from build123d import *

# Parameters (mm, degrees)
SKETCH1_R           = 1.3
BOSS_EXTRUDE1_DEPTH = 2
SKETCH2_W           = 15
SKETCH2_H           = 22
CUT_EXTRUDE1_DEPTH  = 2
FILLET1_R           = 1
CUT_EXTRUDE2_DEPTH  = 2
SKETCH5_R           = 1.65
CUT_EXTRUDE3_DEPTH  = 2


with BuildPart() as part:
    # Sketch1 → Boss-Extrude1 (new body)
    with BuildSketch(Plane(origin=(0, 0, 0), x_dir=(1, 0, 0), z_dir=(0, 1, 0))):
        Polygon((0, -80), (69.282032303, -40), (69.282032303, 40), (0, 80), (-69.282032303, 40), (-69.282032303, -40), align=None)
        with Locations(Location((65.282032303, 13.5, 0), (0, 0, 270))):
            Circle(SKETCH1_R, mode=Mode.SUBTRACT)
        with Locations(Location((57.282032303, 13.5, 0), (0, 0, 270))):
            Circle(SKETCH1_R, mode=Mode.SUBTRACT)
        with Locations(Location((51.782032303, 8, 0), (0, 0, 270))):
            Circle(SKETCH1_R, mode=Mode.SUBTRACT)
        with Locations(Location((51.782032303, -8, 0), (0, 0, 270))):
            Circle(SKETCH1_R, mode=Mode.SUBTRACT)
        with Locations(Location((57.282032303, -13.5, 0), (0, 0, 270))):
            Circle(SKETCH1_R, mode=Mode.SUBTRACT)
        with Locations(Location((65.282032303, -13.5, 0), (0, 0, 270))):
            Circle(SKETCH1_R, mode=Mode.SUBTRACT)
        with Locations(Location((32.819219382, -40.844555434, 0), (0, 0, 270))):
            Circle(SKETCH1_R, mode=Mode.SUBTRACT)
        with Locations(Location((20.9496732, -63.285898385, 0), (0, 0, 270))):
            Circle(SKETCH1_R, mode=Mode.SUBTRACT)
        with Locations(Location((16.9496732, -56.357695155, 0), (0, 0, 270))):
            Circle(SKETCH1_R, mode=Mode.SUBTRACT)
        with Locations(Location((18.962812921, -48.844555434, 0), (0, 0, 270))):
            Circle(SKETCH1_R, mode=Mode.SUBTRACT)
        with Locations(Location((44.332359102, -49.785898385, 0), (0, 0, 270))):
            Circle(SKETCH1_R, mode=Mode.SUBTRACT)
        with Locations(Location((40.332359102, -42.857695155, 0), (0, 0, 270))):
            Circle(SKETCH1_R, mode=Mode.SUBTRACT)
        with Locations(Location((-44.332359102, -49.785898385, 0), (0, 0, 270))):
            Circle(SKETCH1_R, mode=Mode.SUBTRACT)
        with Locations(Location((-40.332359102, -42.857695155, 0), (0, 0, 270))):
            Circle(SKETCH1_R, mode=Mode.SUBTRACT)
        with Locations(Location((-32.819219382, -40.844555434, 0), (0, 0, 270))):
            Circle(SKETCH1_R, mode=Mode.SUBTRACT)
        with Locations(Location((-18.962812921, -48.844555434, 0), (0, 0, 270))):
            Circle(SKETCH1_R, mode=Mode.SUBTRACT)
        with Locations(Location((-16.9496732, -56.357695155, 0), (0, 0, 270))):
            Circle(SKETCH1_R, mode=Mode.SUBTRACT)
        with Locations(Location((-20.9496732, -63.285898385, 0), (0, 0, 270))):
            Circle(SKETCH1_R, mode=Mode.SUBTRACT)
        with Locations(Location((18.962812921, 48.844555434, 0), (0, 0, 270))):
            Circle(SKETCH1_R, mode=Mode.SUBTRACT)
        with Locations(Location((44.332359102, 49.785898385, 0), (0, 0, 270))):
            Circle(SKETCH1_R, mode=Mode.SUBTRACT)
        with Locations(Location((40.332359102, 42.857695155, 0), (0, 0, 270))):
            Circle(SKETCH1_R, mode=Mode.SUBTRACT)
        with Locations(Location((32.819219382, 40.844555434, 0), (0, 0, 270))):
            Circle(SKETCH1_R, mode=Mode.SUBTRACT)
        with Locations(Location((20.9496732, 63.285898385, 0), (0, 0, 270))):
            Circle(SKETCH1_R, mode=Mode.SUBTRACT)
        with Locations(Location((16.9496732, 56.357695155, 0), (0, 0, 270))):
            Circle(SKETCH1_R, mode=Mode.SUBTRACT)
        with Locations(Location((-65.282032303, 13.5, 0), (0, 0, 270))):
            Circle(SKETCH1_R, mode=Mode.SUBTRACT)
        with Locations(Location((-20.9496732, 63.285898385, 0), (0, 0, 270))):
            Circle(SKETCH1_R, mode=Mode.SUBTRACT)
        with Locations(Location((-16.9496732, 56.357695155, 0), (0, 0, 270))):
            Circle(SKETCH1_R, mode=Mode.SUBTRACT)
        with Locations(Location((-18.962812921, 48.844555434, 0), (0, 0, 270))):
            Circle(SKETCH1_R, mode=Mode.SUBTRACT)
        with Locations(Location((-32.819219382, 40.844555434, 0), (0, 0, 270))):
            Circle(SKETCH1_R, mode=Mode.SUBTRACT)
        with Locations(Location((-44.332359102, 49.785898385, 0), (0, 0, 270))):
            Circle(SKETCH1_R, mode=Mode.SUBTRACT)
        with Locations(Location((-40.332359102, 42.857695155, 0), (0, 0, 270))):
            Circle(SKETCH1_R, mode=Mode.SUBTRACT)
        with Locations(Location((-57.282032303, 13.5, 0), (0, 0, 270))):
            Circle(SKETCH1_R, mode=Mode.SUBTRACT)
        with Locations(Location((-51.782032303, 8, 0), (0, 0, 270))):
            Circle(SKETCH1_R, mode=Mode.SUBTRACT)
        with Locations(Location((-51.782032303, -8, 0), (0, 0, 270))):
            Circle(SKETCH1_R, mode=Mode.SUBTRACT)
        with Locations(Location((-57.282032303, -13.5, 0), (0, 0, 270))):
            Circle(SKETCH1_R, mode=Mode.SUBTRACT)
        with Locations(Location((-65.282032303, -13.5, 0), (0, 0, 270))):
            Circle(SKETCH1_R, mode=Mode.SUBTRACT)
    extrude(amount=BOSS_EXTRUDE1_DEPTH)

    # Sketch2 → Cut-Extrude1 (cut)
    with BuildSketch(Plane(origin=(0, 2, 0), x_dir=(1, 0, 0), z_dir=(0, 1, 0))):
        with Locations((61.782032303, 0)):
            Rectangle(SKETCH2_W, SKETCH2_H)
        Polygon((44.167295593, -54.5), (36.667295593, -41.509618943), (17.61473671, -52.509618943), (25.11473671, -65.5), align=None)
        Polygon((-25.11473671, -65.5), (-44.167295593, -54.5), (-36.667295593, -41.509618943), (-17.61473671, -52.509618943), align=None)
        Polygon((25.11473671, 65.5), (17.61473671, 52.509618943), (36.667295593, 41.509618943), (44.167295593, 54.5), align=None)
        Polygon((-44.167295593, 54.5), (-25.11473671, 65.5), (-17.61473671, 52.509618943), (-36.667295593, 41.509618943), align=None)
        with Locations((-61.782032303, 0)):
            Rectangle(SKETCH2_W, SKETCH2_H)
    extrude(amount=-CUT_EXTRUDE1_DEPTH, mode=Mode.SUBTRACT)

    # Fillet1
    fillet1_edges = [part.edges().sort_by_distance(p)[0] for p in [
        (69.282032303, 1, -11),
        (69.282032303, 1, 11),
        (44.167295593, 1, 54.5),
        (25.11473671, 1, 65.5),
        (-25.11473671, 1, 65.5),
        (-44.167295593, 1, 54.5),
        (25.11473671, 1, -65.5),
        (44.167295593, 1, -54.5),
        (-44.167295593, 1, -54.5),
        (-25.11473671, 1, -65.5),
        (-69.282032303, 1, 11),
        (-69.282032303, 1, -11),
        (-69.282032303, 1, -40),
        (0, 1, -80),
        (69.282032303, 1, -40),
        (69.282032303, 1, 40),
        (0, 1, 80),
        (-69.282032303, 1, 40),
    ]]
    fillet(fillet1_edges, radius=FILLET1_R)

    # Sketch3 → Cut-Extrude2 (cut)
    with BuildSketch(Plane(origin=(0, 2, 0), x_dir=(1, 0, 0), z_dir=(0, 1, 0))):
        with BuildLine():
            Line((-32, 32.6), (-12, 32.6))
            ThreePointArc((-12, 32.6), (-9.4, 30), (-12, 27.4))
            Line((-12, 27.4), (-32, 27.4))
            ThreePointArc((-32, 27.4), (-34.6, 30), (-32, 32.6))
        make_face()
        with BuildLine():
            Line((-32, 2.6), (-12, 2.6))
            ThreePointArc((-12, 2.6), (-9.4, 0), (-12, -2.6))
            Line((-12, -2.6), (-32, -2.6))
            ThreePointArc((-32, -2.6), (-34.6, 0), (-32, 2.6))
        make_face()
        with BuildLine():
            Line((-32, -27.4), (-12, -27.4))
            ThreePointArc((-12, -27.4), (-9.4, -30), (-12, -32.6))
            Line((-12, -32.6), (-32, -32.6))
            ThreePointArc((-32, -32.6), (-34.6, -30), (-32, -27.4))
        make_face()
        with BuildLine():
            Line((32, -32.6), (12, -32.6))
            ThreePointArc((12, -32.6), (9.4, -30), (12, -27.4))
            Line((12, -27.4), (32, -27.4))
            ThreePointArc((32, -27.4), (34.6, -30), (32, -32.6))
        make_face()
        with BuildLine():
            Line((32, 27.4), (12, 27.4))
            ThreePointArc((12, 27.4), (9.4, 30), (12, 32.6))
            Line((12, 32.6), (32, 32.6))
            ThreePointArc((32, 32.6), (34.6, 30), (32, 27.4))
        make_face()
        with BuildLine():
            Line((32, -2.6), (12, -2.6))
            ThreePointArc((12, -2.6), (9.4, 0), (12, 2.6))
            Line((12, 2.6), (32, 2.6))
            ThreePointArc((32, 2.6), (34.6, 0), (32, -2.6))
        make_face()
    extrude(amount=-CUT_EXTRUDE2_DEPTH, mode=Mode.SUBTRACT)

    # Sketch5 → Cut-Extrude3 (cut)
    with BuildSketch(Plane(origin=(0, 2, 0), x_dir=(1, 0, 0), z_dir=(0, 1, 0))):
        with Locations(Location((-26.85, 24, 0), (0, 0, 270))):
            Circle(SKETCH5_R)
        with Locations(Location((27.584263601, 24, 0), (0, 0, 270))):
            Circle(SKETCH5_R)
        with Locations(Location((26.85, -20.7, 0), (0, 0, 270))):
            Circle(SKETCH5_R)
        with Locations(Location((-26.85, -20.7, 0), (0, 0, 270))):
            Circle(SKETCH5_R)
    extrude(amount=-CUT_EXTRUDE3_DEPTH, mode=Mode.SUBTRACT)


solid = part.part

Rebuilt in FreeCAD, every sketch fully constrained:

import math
import FreeCAD as App
import Part
import Sketcher
from FreeCAD import Vector
Q = App.Units.Quantity


def edges_at(feature, points):
    """Names of the edges that pass closest to the given points."""
    edges = feature.Shape.Edges
    near = lambda p: min(range(len(edges)), key=lambda i: edges[i].distToShape(Part.Vertex(*p))[0])
    return sorted({f"Edge{near(p) + 1}" for p in points})

doc = App.newDocument("Part")
params = doc.addObject("Spreadsheet::Sheet", "Params")
for row, (alias, value) in enumerate([
    ("sketch1_diameter", "2.6 mm"),
    ("sketch1_height", "80 mm"),
    ("sketch1_length", "80 mm"),
    ("pad1_length", "2 mm"),
    ("sketch2_width", "15 mm"),
    ("sketch2_height", "22 mm"),
    ("sketch2_length", "15 mm"),
    ("sketch2_length2", "22 mm"),
    ("pocket1_length", "2 mm"),
    ("fillet_radius", "1 mm"),
    ("sketch3_radius", "2.6 mm"),
    ("sketch3_width", "20 mm"),
    ("pocket2_length", "2 mm"),
    ("sketch4_diameter", "3.3 mm"),
    ("pocket3_length", "2 mm"),
], start=1):
    params.set(f"A{row}", alias)
    params.set(f"B{row}", "=" + value)
    params.setAlias(f"B{row}", alias)

body = doc.addObject("PartDesign::Body", "Body")

sketch1 = body.newObject("Sketcher::SketchObject", "Sketch")
sketch1.AttachmentSupport = (doc.getObject("XZ_Plane"), [""])
sketch1.MapMode = "FlatFace"
sketch1.addGeometry(Part.LineSegment(Vector(0, 80, 0), Vector(69.282032, 40, 0)), False)
sketch1.addGeometry(Part.LineSegment(Vector(69.282032, 40, 0), Vector(69.282032, -40, 0)), False)
sketch1.addGeometry(Part.LineSegment(Vector(69.282032, -40, 0), Vector(0, -80, 0)), False)
sketch1.addGeometry(Part.LineSegment(Vector(0, -80, 0), Vector(-69.282032, -40, 0)), False)
sketch1.addGeometry(Part.LineSegment(Vector(-69.282032, -40, 0), Vector(-69.282032, 40, 0)), False)
sketch1.addGeometry(Part.LineSegment(Vector(-69.282032, 40, 0), Vector(0, 80, 0)), False)
sketch1.addGeometry(Part.Circle(Vector(-44.332359, 49.785898, 0), Vector(0, 0, 1), 1.3), False)
sketch1.addGeometry(Part.Circle(Vector(-40.332359, 42.857695, 0), Vector(0, 0, 1), 1.3), False)
sketch1.addGeometry(Part.Circle(Vector(-20.949673, 63.285898, 0), Vector(0, 0, 1), 1.3), False)
sketch1.addGeometry(Part.Circle(Vector(-16.949673, 56.357695, 0), Vector(0, 0, 1), 1.3), False)
sketch1.addGeometry(Part.Circle(Vector(-18.962813, 48.844555, 0), Vector(0, 0, 1), 1.3), False)
sketch1.addGeometry(Part.Circle(Vector(-32.819219, 40.844555, 0), Vector(0, 0, 1), 1.3), False)
sketch1.addGeometry(Part.Circle(Vector(-65.282032, 13.5, 0), Vector(0, 0, 1), 1.3), False)
sketch1.addGeometry(Part.Circle(Vector(-57.282032, 13.5, 0), Vector(0, 0, 1), 1.3), False)
sketch1.addGeometry(Part.Circle(Vector(-51.782032, 8, 0), Vector(0, 0, 1), 1.3), False)
sketch1.addGeometry(Part.Circle(Vector(20.949673, 63.285898, 0), Vector(0, 0, 1), 1.3), False)
sketch1.addGeometry(Part.Circle(Vector(16.949673, 56.357695, 0), Vector(0, 0, 1), 1.3), False)
sketch1.addGeometry(Part.Circle(Vector(18.962813, 48.844555, 0), Vector(0, 0, 1), 1.3), False)
sketch1.addGeometry(Part.Circle(Vector(32.819219, 40.844555, 0), Vector(0, 0, 1), 1.3), False)
sketch1.addGeometry(Part.Circle(Vector(44.332359, 49.785898, 0), Vector(0, 0, 1), 1.3), False)
sketch1.addGeometry(Part.Circle(Vector(40.332359, 42.857695, 0), Vector(0, 0, 1), 1.3), False)
sketch1.addGeometry(Part.Circle(Vector(57.282032, 13.5, 0), Vector(0, 0, 1), 1.3), False)
sketch1.addGeometry(Part.Circle(Vector(65.282032, 13.5, 0), Vector(0, 0, 1), 1.3), False)
sketch1.addGeometry(Part.Circle(Vector(51.782032, 8, 0), Vector(0, 0, 1), 1.3), False)
sketch1.addGeometry(Part.Circle(Vector(-51.782032, -8, 0), Vector(0, 0, 1), 1.3), False)
sketch1.addGeometry(Part.Circle(Vector(-65.282032, -13.5, 0), Vector(0, 0, 1), 1.3), False)
sketch1.addGeometry(Part.Circle(Vector(-57.282032, -13.5, 0), Vector(0, 0, 1), 1.3), False)
sketch1.addGeometry(Part.Circle(Vector(-40.332359, -42.857695, 0), Vector(0, 0, 1), 1.3), False)
sketch1.addGeometry(Part.Circle(Vector(-44.332359, -49.785898, 0), Vector(0, 0, 1), 1.3), False)
sketch1.addGeometry(Part.Circle(Vector(-32.819219, -40.844555, 0), Vector(0, 0, 1), 1.3), False)
sketch1.addGeometry(Part.Circle(Vector(-18.962813, -48.844555, 0), Vector(0, 0, 1), 1.3), False)
sketch1.addGeometry(Part.Circle(Vector(-16.949673, -56.357695, 0), Vector(0, 0, 1), 1.3), False)
sketch1.addGeometry(Part.Circle(Vector(-20.949673, -63.285898, 0), Vector(0, 0, 1), 1.3), False)
sketch1.addGeometry(Part.Circle(Vector(51.782032, -8, 0), Vector(0, 0, 1), 1.3), False)
sketch1.addGeometry(Part.Circle(Vector(57.282032, -13.5, 0), Vector(0, 0, 1), 1.3), False)
sketch1.addGeometry(Part.Circle(Vector(65.282032, -13.5, 0), Vector(0, 0, 1), 1.3), False)
sketch1.addGeometry(Part.Circle(Vector(32.819219, -40.844555, 0), Vector(0, 0, 1), 1.3), False)
sketch1.addGeometry(Part.Circle(Vector(18.962813, -48.844555, 0), Vector(0, 0, 1), 1.3), False)
sketch1.addGeometry(Part.Circle(Vector(16.949673, -56.357695, 0), Vector(0, 0, 1), 1.3), False)
sketch1.addGeometry(Part.Circle(Vector(20.949673, -63.285898, 0), Vector(0, 0, 1), 1.3), False)
sketch1.addGeometry(Part.Circle(Vector(40.332359, -42.857695, 0), Vector(0, 0, 1), 1.3), False)
sketch1.addGeometry(Part.Circle(Vector(44.332359, -49.785898, 0), Vector(0, 0, 1), 1.3), False)
sketch1.addConstraint(Sketcher.Constraint("Coincident", 0, 2, 1, 1))
sketch1.addConstraint(Sketcher.Constraint("Coincident", 1, 2, 2, 1))
sketch1.addConstraint(Sketcher.Constraint("Coincident", 2, 2, 3, 1))
sketch1.addConstraint(Sketcher.Constraint("Coincident", 3, 2, 4, 1))
sketch1.addConstraint(Sketcher.Constraint("Coincident", 4, 2, 5, 1))
sketch1.addConstraint(Sketcher.Constraint("Coincident", 5, 2, 0, 1))
sketch1.addConstraint(Sketcher.Constraint("Vertical", 1))
sketch1.addConstraint(Sketcher.Constraint("Vertical", 4))
sketch1.addConstraint(Sketcher.Constraint("Equal", 6, 7))
sketch1.addConstraint(Sketcher.Constraint("Equal", 7, 8))
sketch1.addConstraint(Sketcher.Constraint("Equal", 8, 9))
sketch1.addConstraint(Sketcher.Constraint("Equal", 9, 10))
sketch1.addConstraint(Sketcher.Constraint("Equal", 10, 11))
sketch1.addConstraint(Sketcher.Constraint("Equal", 11, 12))
sketch1.addConstraint(Sketcher.Constraint("Equal", 12, 13))
sketch1.addConstraint(Sketcher.Constraint("Equal", 13, 14))
sketch1.addConstraint(Sketcher.Constraint("Equal", 14, 15))
sketch1.addConstraint(Sketcher.Constraint("Equal", 15, 16))
sketch1.addConstraint(Sketcher.Constraint("Equal", 16, 17))
sketch1.addConstraint(Sketcher.Constraint("Equal", 17, 18))
sketch1.addConstraint(Sketcher.Constraint("Equal", 18, 19))
sketch1.addConstraint(Sketcher.Constraint("Equal", 19, 20))
sketch1.addConstraint(Sketcher.Constraint("Equal", 20, 21))
sketch1.addConstraint(Sketcher.Constraint("Equal", 21, 22))
sketch1.addConstraint(Sketcher.Constraint("Equal", 22, 23))
sketch1.addConstraint(Sketcher.Constraint("Equal", 23, 24))
sketch1.addConstraint(Sketcher.Constraint("Equal", 24, 25))
sketch1.addConstraint(Sketcher.Constraint("Equal", 25, 26))
sketch1.addConstraint(Sketcher.Constraint("Equal", 26, 27))
sketch1.addConstraint(Sketcher.Constraint("Equal", 27, 28))
sketch1.addConstraint(Sketcher.Constraint("Equal", 28, 29))
sketch1.addConstraint(Sketcher.Constraint("Equal", 29, 30))
sketch1.addConstraint(Sketcher.Constraint("Equal", 30, 31))
sketch1.addConstraint(Sketcher.Constraint("Equal", 31, 32))
sketch1.addConstraint(Sketcher.Constraint("Equal", 32, 33))
sketch1.addConstraint(Sketcher.Constraint("Equal", 33, 34))
sketch1.addConstraint(Sketcher.Constraint("Equal", 34, 35))
sketch1.addConstraint(Sketcher.Constraint("Equal", 35, 36))
sketch1.addConstraint(Sketcher.Constraint("Equal", 36, 37))
sketch1.addConstraint(Sketcher.Constraint("Equal", 37, 38))
sketch1.addConstraint(Sketcher.Constraint("Equal", 38, 39))
sketch1.addConstraint(Sketcher.Constraint("Equal", 39, 40))
sketch1.addConstraint(Sketcher.Constraint("Equal", 40, 41))
sketch1.addConstraint(Sketcher.Constraint("Symmetric", 23, 3, 24, 3, -1, 1))
sketch1.addConstraint(Sketcher.Constraint("Symmetric", 22, 3, 25, 3, -1, 1))
sketch1.addConstraint(Sketcher.Constraint("Symmetric", 21, 3, 26, 3, -1, 1))
sketch1.addConstraint(Sketcher.Constraint("Symmetric", 20, 3, 27, 3, -1, 1))
sketch1.addConstraint(Sketcher.Constraint("Symmetric", 19, 3, 28, 3, -1, 1))
sketch1.addConstraint(Sketcher.Constraint("Symmetric", 18, 3, 29, 3, -1, 1))
sketch1.addConstraint(Sketcher.Constraint("Symmetric", 17, 3, 30, 3, -1, 1))
sketch1.addConstraint(Sketcher.Constraint("Symmetric", 16, 3, 31, 3, -1, 1))
sketch1.addConstraint(Sketcher.Constraint("Symmetric", 15, 3, 32, 3, -1, 1))
sketch1.addConstraint(Sketcher.Constraint("Symmetric", 14, 3, 33, 3, -1, 1))
sketch1.addConstraint(Sketcher.Constraint("Symmetric", 13, 3, 34, 3, -1, 1))
sketch1.addConstraint(Sketcher.Constraint("Symmetric", 12, 3, 35, 3, -1, 1))
sketch1.addConstraint(Sketcher.Constraint("Symmetric", 11, 3, 36, 3, -1, 1))
sketch1.addConstraint(Sketcher.Constraint("Symmetric", 10, 3, 37, 3, -1, 1))
sketch1.addConstraint(Sketcher.Constraint("Symmetric", 9, 3, 38, 3, -1, 1))
sketch1.addConstraint(Sketcher.Constraint("Symmetric", 8, 3, 39, 3, -1, 1))
sketch1.addConstraint(Sketcher.Constraint("Symmetric", 7, 3, 40, 3, -1, 1))
sketch1.addConstraint(Sketcher.Constraint("Symmetric", 6, 3, 41, 3, -1, 1))
sketch1.addConstraint(Sketcher.Constraint("Symmetric", 0, 2, 3, 2, -1, 1))
sketch1.addConstraint(Sketcher.Constraint("Symmetric", 2, 2, 5, 2, -1, 1))
sketch1.addConstraint(Sketcher.Constraint("Symmetric", 8, 3, 15, 3, -2))
sketch1.addConstraint(Sketcher.Constraint("Symmetric", 9, 3, 16, 3, -2))
sketch1.addConstraint(Sketcher.Constraint("Symmetric", 10, 3, 17, 3, -2))
sketch1.addConstraint(Sketcher.Constraint("Symmetric", 11, 3, 18, 3, -2))
sketch1.addConstraint(Sketcher.Constraint("Symmetric", 6, 3, 19, 3, -2))
sketch1.addConstraint(Sketcher.Constraint("Symmetric", 7, 3, 20, 3, -2))
sketch1.addConstraint(Sketcher.Constraint("Symmetric", 13, 3, 21, 3, -2))
sketch1.addConstraint(Sketcher.Constraint("Symmetric", 12, 3, 22, 3, -2))
sketch1.addConstraint(Sketcher.Constraint("Symmetric", 14, 3, 23, 3, -2))
sketch1.addConstraint(Sketcher.Constraint("PointOnObject", 2, 2, -2))
sketch1.addConstraint(Sketcher.Constraint("Parallel", 2, 5))
sketch1.addConstraint(Sketcher.Constraint("Horizontal", 12, 3, 13, 3))
sketch1.addConstraint(Sketcher.Constraint("Horizontal", 1, 2, 3, 2))
sketch1.addConstraint(Sketcher.Constraint("Diameter", 6, 2.6))
sketch1.addConstraint(Sketcher.Constraint("DistanceY", 1, 2, 1, 1, 80.0))
sketch1.addConstraint(Sketcher.Constraint("Angle", 0, Q("-30 deg")))
sketch1.addConstraint(Sketcher.Constraint("Distance", 0, 80.0))
sketch1.addConstraint(Sketcher.Constraint("DistanceY", -1, 1, 14, 3, 8.0))
sketch1.addConstraint(Sketcher.Constraint("DistanceX", 6, 3, 7, 3, 4.0))
sketch1.addConstraint(Sketcher.Constraint("DistanceX", 8, 3, 9, 3, 4.0))
sketch1.addConstraint(Sketcher.Constraint("DistanceY", 11, 3, 10, 3, 8.0))
sketch1.addConstraint(Sketcher.Constraint("DistanceX", 12, 3, 13, 3, 8.0))
sketch1.addConstraint(Sketcher.Constraint("DistanceY", 25, 3, 12, 3, 27.0))
sketch1.addConstraint(Sketcher.Constraint("DistanceX", 22, 3, 0, 2, 4.0))
sketch1.addConstraint(Sketcher.Constraint("DistanceY", 6, 3, 8, 3, 13.5))
sketch1.addConstraint(Sketcher.Constraint("DistanceY", 7, 3, 9, 3, 13.5))
sketch1.addConstraint(Sketcher.Constraint("DistanceX", 13, 3, 14, 3, 5.5))
sketch1.addConstraint(Sketcher.Constraint("DistanceY", -1, 1, 6, 3, 49.785898))
sketch1.addConstraint(Sketcher.Constraint("DistanceX", 6, 3, -1, 1, 44.332359))
sketch1.addConstraint(Sketcher.Constraint("DistanceX", 11, 3, -1, 1, 32.819219))
sketch1.addConstraint(Sketcher.Constraint("DistanceX", 10, 3, 9, 3, 2.01314))
sketch1.addConstraint(Sketcher.Constraint("DistanceY", 10, 3, 9, 3, 7.51314))
sketch1.addConstraint(Sketcher.Constraint("DistanceX", 12, 3, 10, 3, 46.319219))
sketch1.addConstraint(Sketcher.Constraint("DistanceY", -1, 1, 7, 3, 42.857695))
sketch1.setExpression("Constraints[76]", "Params.sketch1_diameter")
sketch1.setExpression("Constraints[77]", "Params.sketch1_height")
sketch1.setExpression("Constraints[79]", "Params.sketch1_length")
pad1 = body.newObject("PartDesign::Pad", "Pad")
pad1.Profile = sketch1
pad1.setExpression("Length", "Params.pad1_length")
pad1.Reversed = True

sketch2 = body.newObject("Sketcher::SketchObject", "Sketch001")
sketch2.AttachmentSupport = (doc.getObject("XZ_Plane"), [""])
sketch2.MapMode = "FlatFace"
sketch2.AttachmentOffset = App.Placement(Vector(0, 0, -2), App.Rotation())
sketch2.addGeometry(Part.LineSegment(Vector(54.282032, -11, 0), Vector(54.282032, 11, 0)), False)
sketch2.addGeometry(Part.LineSegment(Vector(54.282032, 11, 0), Vector(69.282032, 11, 0)), False)
sketch2.addGeometry(Part.LineSegment(Vector(69.282032, 11, 0), Vector(69.282032, -11, 0)), False)
sketch2.addGeometry(Part.LineSegment(Vector(69.282032, -11, 0), Vector(54.282032, -11, 0)), False)
sketch2.addGeometry(Part.LineSegment(Vector(44.167296, 54.5, 0), Vector(36.667296, 41.509619, 0)), False)
sketch2.addGeometry(Part.LineSegment(Vector(36.667296, 41.509619, 0), Vector(17.614737, 52.509619, 0)), False)
sketch2.addGeometry(Part.LineSegment(Vector(17.614737, 52.509619, 0), Vector(25.114737, 65.5, 0)), False)
sketch2.addGeometry(Part.LineSegment(Vector(25.114737, 65.5, 0), Vector(44.167296, 54.5, 0)), False)
sketch2.addGeometry(Part.LineSegment(Vector(-44.167296, 54.5, 0), Vector(-25.114737, 65.5, 0)), False)
sketch2.addGeometry(Part.LineSegment(Vector(-25.114737, 65.5, 0), Vector(-17.614737, 52.509619, 0)), False)
sketch2.addGeometry(Part.LineSegment(Vector(-17.614737, 52.509619, 0), Vector(-36.667296, 41.509619, 0)), False)
sketch2.addGeometry(Part.LineSegment(Vector(-36.667296, 41.509619, 0), Vector(-44.167296, 54.5, 0)), False)
sketch2.addGeometry(Part.LineSegment(Vector(25.114737, -65.5, 0), Vector(17.614737, -52.509619, 0)), False)
sketch2.addGeometry(Part.LineSegment(Vector(17.614737, -52.509619, 0), Vector(36.667296, -41.509619, 0)), False)
sketch2.addGeometry(Part.LineSegment(Vector(36.667296, -41.509619, 0), Vector(44.167296, -54.5, 0)), False)
sketch2.addGeometry(Part.LineSegment(Vector(44.167296, -54.5, 0), Vector(25.114737, -65.5, 0)), False)
sketch2.addGeometry(Part.LineSegment(Vector(-25.114737, -65.5, 0), Vector(-44.167296, -54.5, 0)), False)
sketch2.addGeometry(Part.LineSegment(Vector(-44.167296, -54.5, 0), Vector(-36.667296, -41.509619, 0)), False)
sketch2.addGeometry(Part.LineSegment(Vector(-36.667296, -41.509619, 0), Vector(-17.614737, -52.509619, 0)), False)
sketch2.addGeometry(Part.LineSegment(Vector(-17.614737, -52.509619, 0), Vector(-25.114737, -65.5, 0)), False)
sketch2.addGeometry(Part.LineSegment(Vector(-69.282032, -11, 0), Vector(-69.282032, 11, 0)), False)
sketch2.addGeometry(Part.LineSegment(Vector(-69.282032, 11, 0), Vector(-54.282032, 11, 0)), False)
sketch2.addGeometry(Part.LineSegment(Vector(-54.282032, 11, 0), Vector(-54.282032, -11, 0)), False)
sketch2.addGeometry(Part.LineSegment(Vector(-54.282032, -11, 0), Vector(-69.282032, -11, 0)), False)
sketch2.addConstraint(Sketcher.Constraint("Coincident", 0, 2, 1, 1))
sketch2.addConstraint(Sketcher.Constraint("Coincident", 1, 2, 2, 1))
sketch2.addConstraint(Sketcher.Constraint("Coincident", 2, 2, 3, 1))
sketch2.addConstraint(Sketcher.Constraint("Coincident", 3, 2, 0, 1))
sketch2.addConstraint(Sketcher.Constraint("Coincident", 4, 2, 5, 1))
sketch2.addConstraint(Sketcher.Constraint("Coincident", 5, 2, 6, 1))
sketch2.addConstraint(Sketcher.Constraint("Coincident", 6, 2, 7, 1))
sketch2.addConstraint(Sketcher.Constraint("Coincident", 7, 2, 4, 1))
sketch2.addConstraint(Sketcher.Constraint("Coincident", 8, 2, 9, 1))
sketch2.addConstraint(Sketcher.Constraint("Coincident", 9, 2, 10, 1))
sketch2.addConstraint(Sketcher.Constraint("Coincident", 10, 2, 11, 1))
sketch2.addConstraint(Sketcher.Constraint("Coincident", 11, 2, 8, 1))
sketch2.addConstraint(Sketcher.Constraint("Coincident", 12, 2, 13, 1))
sketch2.addConstraint(Sketcher.Constraint("Coincident", 13, 2, 14, 1))
sketch2.addConstraint(Sketcher.Constraint("Coincident", 14, 2, 15, 1))
sketch2.addConstraint(Sketcher.Constraint("Coincident", 15, 2, 12, 1))
sketch2.addConstraint(Sketcher.Constraint("Coincident", 16, 2, 17, 1))
sketch2.addConstraint(Sketcher.Constraint("Coincident", 17, 2, 18, 1))
sketch2.addConstraint(Sketcher.Constraint("Coincident", 18, 2, 19, 1))
sketch2.addConstraint(Sketcher.Constraint("Coincident", 19, 2, 16, 1))
sketch2.addConstraint(Sketcher.Constraint("Coincident", 20, 2, 21, 1))
sketch2.addConstraint(Sketcher.Constraint("Coincident", 21, 2, 22, 1))
sketch2.addConstraint(Sketcher.Constraint("Coincident", 22, 2, 23, 1))
sketch2.addConstraint(Sketcher.Constraint("Coincident", 23, 2, 20, 1))
sketch2.addConstraint(Sketcher.Constraint("Vertical", 0))
sketch2.addConstraint(Sketcher.Constraint("Horizontal", 1))
sketch2.addConstraint(Sketcher.Constraint("Vertical", 2))
sketch2.addConstraint(Sketcher.Constraint("Horizontal", 3))
sketch2.addConstraint(Sketcher.Constraint("Vertical", 20))
sketch2.addConstraint(Sketcher.Constraint("Horizontal", 21))
sketch2.addConstraint(Sketcher.Constraint("Vertical", 22))
sketch2.addConstraint(Sketcher.Constraint("Horizontal", 23))
sketch2.addConstraint(Sketcher.Constraint("Symmetric", 9, 2, 12, 2, -1, 1))
sketch2.addConstraint(Sketcher.Constraint("Symmetric", 10, 2, 13, 2, -1, 1))
sketch2.addConstraint(Sketcher.Constraint("Symmetric", 11, 2, 14, 2, -1, 1))
sketch2.addConstraint(Sketcher.Constraint("Symmetric", 8, 2, 15, 2, -1, 1))
sketch2.addConstraint(Sketcher.Constraint("Symmetric", 7, 2, 16, 2, -1, 1))
sketch2.addConstraint(Sketcher.Constraint("Symmetric", 4, 2, 17, 2, -1, 1))
sketch2.addConstraint(Sketcher.Constraint("Symmetric", 5, 2, 18, 2, -1, 1))
sketch2.addConstraint(Sketcher.Constraint("Symmetric", 6, 2, 19, 2, -1, 1))
sketch2.addConstraint(Sketcher.Constraint("Symmetric", 2, 2, 20, 2, -1, 1))
sketch2.addConstraint(Sketcher.Constraint("Symmetric", 0, 2, 22, 2, -1, 1))
sketch2.addConstraint(Sketcher.Constraint("Symmetric", 6, 2, 8, 2, -2))
sketch2.addConstraint(Sketcher.Constraint("Symmetric", 5, 2, 9, 2, -2))
sketch2.addConstraint(Sketcher.Constraint("Symmetric", 4, 2, 10, 2, -2))
sketch2.addConstraint(Sketcher.Constraint("Symmetric", 7, 2, 11, 2, -2))
sketch2.addConstraint(Sketcher.Constraint("Perpendicular", 4, 5))
sketch2.addConstraint(Sketcher.Constraint("Perpendicular", 5, 6))
sketch2.addConstraint(Sketcher.Constraint("Perpendicular", 6, 7))
sketch2.addConstraint(Sketcher.Constraint("Horizontal", 1, 2, 20, 2))
sketch2.addConstraint(Sketcher.Constraint("DistanceX", 1, 1, 1, 2, 15.0))
sketch2.addConstraint(Sketcher.Constraint("DistanceY", 0, 1, 0, 2, 22.0))
sketch2.addConstraint(Sketcher.Constraint("Angle", 4, Q("-120 deg")))
sketch2.addConstraint(Sketcher.Constraint("Distance", 4, 15.0))
sketch2.addConstraint(Sketcher.Constraint("Distance", 5, 22.0))
sketch2.addConstraint(Sketcher.Constraint("DistanceY", -1, 1, 6, 2, 65.5))
sketch2.addConstraint(Sketcher.Constraint("DistanceX", 8, 2, 0, 2, 79.396769))
sketch2.addConstraint(Sketcher.Constraint("DistanceX", 10, 2, 4, 2, 73.334591))
sketch2.setExpression("Constraints[50]", "Params.sketch2_width")
sketch2.setExpression("Constraints[51]", "Params.sketch2_height")
sketch2.setExpression("Constraints[53]", "Params.sketch2_length")
sketch2.setExpression("Constraints[54]", "Params.sketch2_length2")
pocket1 = body.newObject("PartDesign::Pocket", "Pocket")
pocket1.Profile = sketch2
pocket1.setExpression("Length", "Params.pocket1_length")
pocket1.Reversed = True
doc.recompute()

fillet = body.newObject("PartDesign::Fillet", "Fillet")
fillet.Base = (pocket1, edges_at(pocket1, [
    (69.282, 1, -11),
    (69.282, 1, 11),
    (44.167, 1, 54.5),
    (25.115, 1, 65.5),
    (-25.115, 1, 65.5),
    (-44.167, 1, 54.5),
    (25.115, 1, -65.5),
    (44.167, 1, -54.5),
    (-44.167, 1, -54.5),
    (-25.115, 1, -65.5),
    (-69.282, 1, 11),
    (-69.282, 1, -11),
    (-69.282, 1, -40),
    (0, 1, -80),
    (69.282, 1, -40),
    (69.282, 1, 40),
    (0, 1, 80),
    (-69.282, 1, 40),
]))
fillet.setExpression("Radius", "Params.fillet_radius")

sketch3 = body.newObject("Sketcher::SketchObject", "Sketch002")
sketch3.AttachmentSupport = (doc.getObject("XZ_Plane"), [""])
sketch3.MapMode = "FlatFace"
sketch3.AttachmentOffset = App.Placement(Vector(0, 0, -2), App.Rotation())
sketch3.addGeometry(Part.LineSegment(Vector(-12, -32.6, 0), Vector(-32, -32.6, 0)), False)
sketch3.addGeometry(Part.ArcOfCircle(Part.Circle(Vector(-32, -30, 0), Vector(0, 0, 1), 2.6), math.radians(90), math.radians(270)), False)
sketch3.addGeometry(Part.LineSegment(Vector(-32, -27.4, 0), Vector(-12, -27.4, 0)), False)
sketch3.addGeometry(Part.ArcOfCircle(Part.Circle(Vector(-12, -30, 0), Vector(0, 0, 1), 2.6), math.radians(-90), math.radians(90)), False)
sketch3.addGeometry(Part.LineSegment(Vector(-12, -2.6, 0), Vector(-32, -2.6, 0)), False)
sketch3.addGeometry(Part.ArcOfCircle(Part.Circle(Vector(-32, 0, 0), Vector(0, 0, 1), 2.6), math.radians(90), math.radians(270)), False)
sketch3.addGeometry(Part.LineSegment(Vector(-32, 2.6, 0), Vector(-12, 2.6, 0)), False)
sketch3.addGeometry(Part.ArcOfCircle(Part.Circle(Vector(-12, 0, 0), Vector(0, 0, 1), 2.6), math.radians(-90), math.radians(90)), False)
sketch3.addGeometry(Part.LineSegment(Vector(-12, 27.4, 0), Vector(-32, 27.4, 0)), False)
sketch3.addGeometry(Part.ArcOfCircle(Part.Circle(Vector(-32, 30, 0), Vector(0, 0, 1), 2.6), math.radians(90), math.radians(270)), False)
sketch3.addGeometry(Part.LineSegment(Vector(-32, 32.6, 0), Vector(-12, 32.6, 0)), False)
sketch3.addGeometry(Part.ArcOfCircle(Part.Circle(Vector(-12, 30, 0), Vector(0, 0, 1), 2.6), math.radians(-90), math.radians(90)), False)
sketch3.addGeometry(Part.LineSegment(Vector(12, 32.6, 0), Vector(32, 32.6, 0)), False)
sketch3.addGeometry(Part.ArcOfCircle(Part.Circle(Vector(32, 30, 0), Vector(0, 0, 1), 2.6), math.radians(-90), math.radians(90)), False)
sketch3.addGeometry(Part.LineSegment(Vector(32, 27.4, 0), Vector(12, 27.4, 0)), False)
sketch3.addGeometry(Part.ArcOfCircle(Part.Circle(Vector(12, 30, 0), Vector(0, 0, 1), 2.6), math.radians(90), math.radians(270)), False)
sketch3.addGeometry(Part.LineSegment(Vector(12, -27.4, 0), Vector(32, -27.4, 0)), False)
sketch3.addGeometry(Part.ArcOfCircle(Part.Circle(Vector(32, -30, 0), Vector(0, 0, 1), 2.6), math.radians(-90), math.radians(90)), False)
sketch3.addGeometry(Part.LineSegment(Vector(32, -32.6, 0), Vector(12, -32.6, 0)), False)
sketch3.addGeometry(Part.ArcOfCircle(Part.Circle(Vector(12, -30, 0), Vector(0, 0, 1), 2.6), math.radians(90), math.radians(270)), False)
sketch3.addGeometry(Part.LineSegment(Vector(12, 2.6, 0), Vector(32, 2.6, 0)), False)
sketch3.addGeometry(Part.ArcOfCircle(Part.Circle(Vector(32, 0, 0), Vector(0, 0, 1), 2.6), math.radians(-90), math.radians(90)), False)
sketch3.addGeometry(Part.LineSegment(Vector(32, -2.6, 0), Vector(12, -2.6, 0)), False)
sketch3.addGeometry(Part.ArcOfCircle(Part.Circle(Vector(12, 0, 0), Vector(0, 0, 1), 2.6), math.radians(90), math.radians(270)), False)
sketch3.addConstraint(Sketcher.Constraint("Tangent", 0, 2, 1, 2))
sketch3.addConstraint(Sketcher.Constraint("Tangent", 1, 1, 2, 1))
sketch3.addConstraint(Sketcher.Constraint("Tangent", 2, 2, 3, 2))
sketch3.addConstraint(Sketcher.Constraint("Tangent", 3, 1, 0, 1))
sketch3.addConstraint(Sketcher.Constraint("Tangent", 4, 2, 5, 2))
sketch3.addConstraint(Sketcher.Constraint("Tangent", 5, 1, 6, 1))
sketch3.addConstraint(Sketcher.Constraint("Tangent", 6, 2, 7, 2))
sketch3.addConstraint(Sketcher.Constraint("Tangent", 7, 1, 4, 1))
sketch3.addConstraint(Sketcher.Constraint("Tangent", 8, 2, 9, 2))
sketch3.addConstraint(Sketcher.Constraint("Tangent", 9, 1, 10, 1))
sketch3.addConstraint(Sketcher.Constraint("Tangent", 10, 2, 11, 2))
sketch3.addConstraint(Sketcher.Constraint("Tangent", 11, 1, 8, 1))
sketch3.addConstraint(Sketcher.Constraint("Tangent", 12, 2, 13, 2))
sketch3.addConstraint(Sketcher.Constraint("Tangent", 13, 1, 14, 1))
sketch3.addConstraint(Sketcher.Constraint("Tangent", 14, 2, 15, 2))
sketch3.addConstraint(Sketcher.Constraint("Tangent", 15, 1, 12, 1))
sketch3.addConstraint(Sketcher.Constraint("Tangent", 16, 2, 17, 2))
sketch3.addConstraint(Sketcher.Constraint("Tangent", 17, 1, 18, 1))
sketch3.addConstraint(Sketcher.Constraint("Tangent", 18, 2, 19, 2))
sketch3.addConstraint(Sketcher.Constraint("Tangent", 19, 1, 16, 1))
sketch3.addConstraint(Sketcher.Constraint("Tangent", 20, 2, 21, 2))
sketch3.addConstraint(Sketcher.Constraint("Tangent", 21, 1, 22, 1))
sketch3.addConstraint(Sketcher.Constraint("Tangent", 22, 2, 23, 2))
sketch3.addConstraint(Sketcher.Constraint("Tangent", 23, 1, 20, 1))
sketch3.addConstraint(Sketcher.Constraint("Horizontal", 0))
sketch3.addConstraint(Sketcher.Constraint("Horizontal", 2))
sketch3.addConstraint(Sketcher.Constraint("Horizontal", 4))
sketch3.addConstraint(Sketcher.Constraint("Horizontal", 6))
sketch3.addConstraint(Sketcher.Constraint("Horizontal", 8))
sketch3.addConstraint(Sketcher.Constraint("Horizontal", 10))
sketch3.addConstraint(Sketcher.Constraint("Horizontal", 12))
sketch3.addConstraint(Sketcher.Constraint("Horizontal", 14))
sketch3.addConstraint(Sketcher.Constraint("Horizontal", 16))
sketch3.addConstraint(Sketcher.Constraint("Horizontal", 18))
sketch3.addConstraint(Sketcher.Constraint("Horizontal", 20))
sketch3.addConstraint(Sketcher.Constraint("Horizontal", 22))
sketch3.addConstraint(Sketcher.Constraint("Equal", 3, 5))
sketch3.addConstraint(Sketcher.Constraint("Equal", 7, 9))
sketch3.addConstraint(Sketcher.Constraint("Equal", 11, 13))
sketch3.addConstraint(Sketcher.Constraint("Equal", 15, 17))
sketch3.addConstraint(Sketcher.Constraint("Equal", 19, 21))
sketch3.addConstraint(Sketcher.Constraint("Symmetric", 1, 3, 13, 3, -1, 1))
sketch3.addConstraint(Sketcher.Constraint("Symmetric", 9, 3, 17, 3, -1, 1))
sketch3.addConstraint(Sketcher.Constraint("Symmetric", 5, 3, 21, 3, -1, 1))
sketch3.addConstraint(Sketcher.Constraint("Symmetric", 9, 3, 13, 3, -2))
sketch3.addConstraint(Sketcher.Constraint("Symmetric", 7, 3, 23, 3, -2))
sketch3.addConstraint(Sketcher.Constraint("Vertical", 1, 3, 5, 3))
sketch3.addConstraint(Sketcher.Constraint("Vertical", 3, 3, 7, 3))
sketch3.addConstraint(Sketcher.Constraint("Vertical", 7, 3, 11, 3))
sketch3.addConstraint(Sketcher.Constraint("Vertical", 15, 3, 19, 3))
sketch3.addConstraint(Sketcher.Constraint("Vertical", 19, 3, 23, 3))
sketch3.addConstraint(Sketcher.Constraint("Radius", 1, 2.6))
sketch3.addConstraint(Sketcher.Constraint("DistanceX", 0, 2, 0, 1, 20.0))
sketch3.addConstraint(Sketcher.Constraint("DistanceX", 1, 3, -1, 1, 32.0))
sketch3.addConstraint(Sketcher.Constraint("DistanceY", 1, 3, -1, 1, 30.0))
sketch3.setExpression("Constraints[51]", "Params.sketch3_radius")
sketch3.setExpression("Constraints[52]", "Params.sketch3_width")
pocket2 = body.newObject("PartDesign::Pocket", "Pocket001")
pocket2.Profile = sketch3
pocket2.setExpression("Length", "Params.pocket2_length")
pocket2.Reversed = True

sketch4 = body.newObject("Sketcher::SketchObject", "Sketch003")
sketch4.AttachmentSupport = (doc.getObject("XZ_Plane"), [""])
sketch4.MapMode = "FlatFace"
sketch4.AttachmentOffset = App.Placement(Vector(0, 0, -2), App.Rotation())
sketch4.addGeometry(Part.Circle(Vector(-26.85, -24, 0), Vector(0, 0, 1), 1.65), False)
sketch4.addGeometry(Part.Circle(Vector(27.584264, -24, 0), Vector(0, 0, 1), 1.65), False)
sketch4.addGeometry(Part.Circle(Vector(26.85, 20.7, 0), Vector(0, 0, 1), 1.65), False)
sketch4.addGeometry(Part.Circle(Vector(-26.85, 20.7, 0), Vector(0, 0, 1), 1.65), False)
sketch4.addConstraint(Sketcher.Constraint("Equal", 0, 1))
sketch4.addConstraint(Sketcher.Constraint("Equal", 1, 2))
sketch4.addConstraint(Sketcher.Constraint("Equal", 2, 3))
sketch4.addConstraint(Sketcher.Constraint("Symmetric", 2, 3, 3, 3, -2))
sketch4.addConstraint(Sketcher.Constraint("Horizontal", 0, 3, 1, 3))
sketch4.addConstraint(Sketcher.Constraint("Vertical", 0, 3, 3, 3))
sketch4.addConstraint(Sketcher.Constraint("Diameter", 0, 3.3))
sketch4.addConstraint(Sketcher.Constraint("DistanceY", 0, 3, -1, 1, 24.0))
sketch4.addConstraint(Sketcher.Constraint("DistanceY", -1, 1, 2, 3, 20.7))
sketch4.addConstraint(Sketcher.Constraint("DistanceX", 0, 3, 2, 3, 53.7))
sketch4.addConstraint(Sketcher.Constraint("DistanceX", -1, 1, 1, 3, 27.584264))
sketch4.setExpression("Constraints[6]", "Params.sketch4_diameter")
pocket3 = body.newObject("PartDesign::Pocket", "Pocket002")
pocket3.Profile = sketch4
pocket3.setExpression("Length", "Params.pocket3_length")
pocket3.Reversed = True

doc.recompute()
